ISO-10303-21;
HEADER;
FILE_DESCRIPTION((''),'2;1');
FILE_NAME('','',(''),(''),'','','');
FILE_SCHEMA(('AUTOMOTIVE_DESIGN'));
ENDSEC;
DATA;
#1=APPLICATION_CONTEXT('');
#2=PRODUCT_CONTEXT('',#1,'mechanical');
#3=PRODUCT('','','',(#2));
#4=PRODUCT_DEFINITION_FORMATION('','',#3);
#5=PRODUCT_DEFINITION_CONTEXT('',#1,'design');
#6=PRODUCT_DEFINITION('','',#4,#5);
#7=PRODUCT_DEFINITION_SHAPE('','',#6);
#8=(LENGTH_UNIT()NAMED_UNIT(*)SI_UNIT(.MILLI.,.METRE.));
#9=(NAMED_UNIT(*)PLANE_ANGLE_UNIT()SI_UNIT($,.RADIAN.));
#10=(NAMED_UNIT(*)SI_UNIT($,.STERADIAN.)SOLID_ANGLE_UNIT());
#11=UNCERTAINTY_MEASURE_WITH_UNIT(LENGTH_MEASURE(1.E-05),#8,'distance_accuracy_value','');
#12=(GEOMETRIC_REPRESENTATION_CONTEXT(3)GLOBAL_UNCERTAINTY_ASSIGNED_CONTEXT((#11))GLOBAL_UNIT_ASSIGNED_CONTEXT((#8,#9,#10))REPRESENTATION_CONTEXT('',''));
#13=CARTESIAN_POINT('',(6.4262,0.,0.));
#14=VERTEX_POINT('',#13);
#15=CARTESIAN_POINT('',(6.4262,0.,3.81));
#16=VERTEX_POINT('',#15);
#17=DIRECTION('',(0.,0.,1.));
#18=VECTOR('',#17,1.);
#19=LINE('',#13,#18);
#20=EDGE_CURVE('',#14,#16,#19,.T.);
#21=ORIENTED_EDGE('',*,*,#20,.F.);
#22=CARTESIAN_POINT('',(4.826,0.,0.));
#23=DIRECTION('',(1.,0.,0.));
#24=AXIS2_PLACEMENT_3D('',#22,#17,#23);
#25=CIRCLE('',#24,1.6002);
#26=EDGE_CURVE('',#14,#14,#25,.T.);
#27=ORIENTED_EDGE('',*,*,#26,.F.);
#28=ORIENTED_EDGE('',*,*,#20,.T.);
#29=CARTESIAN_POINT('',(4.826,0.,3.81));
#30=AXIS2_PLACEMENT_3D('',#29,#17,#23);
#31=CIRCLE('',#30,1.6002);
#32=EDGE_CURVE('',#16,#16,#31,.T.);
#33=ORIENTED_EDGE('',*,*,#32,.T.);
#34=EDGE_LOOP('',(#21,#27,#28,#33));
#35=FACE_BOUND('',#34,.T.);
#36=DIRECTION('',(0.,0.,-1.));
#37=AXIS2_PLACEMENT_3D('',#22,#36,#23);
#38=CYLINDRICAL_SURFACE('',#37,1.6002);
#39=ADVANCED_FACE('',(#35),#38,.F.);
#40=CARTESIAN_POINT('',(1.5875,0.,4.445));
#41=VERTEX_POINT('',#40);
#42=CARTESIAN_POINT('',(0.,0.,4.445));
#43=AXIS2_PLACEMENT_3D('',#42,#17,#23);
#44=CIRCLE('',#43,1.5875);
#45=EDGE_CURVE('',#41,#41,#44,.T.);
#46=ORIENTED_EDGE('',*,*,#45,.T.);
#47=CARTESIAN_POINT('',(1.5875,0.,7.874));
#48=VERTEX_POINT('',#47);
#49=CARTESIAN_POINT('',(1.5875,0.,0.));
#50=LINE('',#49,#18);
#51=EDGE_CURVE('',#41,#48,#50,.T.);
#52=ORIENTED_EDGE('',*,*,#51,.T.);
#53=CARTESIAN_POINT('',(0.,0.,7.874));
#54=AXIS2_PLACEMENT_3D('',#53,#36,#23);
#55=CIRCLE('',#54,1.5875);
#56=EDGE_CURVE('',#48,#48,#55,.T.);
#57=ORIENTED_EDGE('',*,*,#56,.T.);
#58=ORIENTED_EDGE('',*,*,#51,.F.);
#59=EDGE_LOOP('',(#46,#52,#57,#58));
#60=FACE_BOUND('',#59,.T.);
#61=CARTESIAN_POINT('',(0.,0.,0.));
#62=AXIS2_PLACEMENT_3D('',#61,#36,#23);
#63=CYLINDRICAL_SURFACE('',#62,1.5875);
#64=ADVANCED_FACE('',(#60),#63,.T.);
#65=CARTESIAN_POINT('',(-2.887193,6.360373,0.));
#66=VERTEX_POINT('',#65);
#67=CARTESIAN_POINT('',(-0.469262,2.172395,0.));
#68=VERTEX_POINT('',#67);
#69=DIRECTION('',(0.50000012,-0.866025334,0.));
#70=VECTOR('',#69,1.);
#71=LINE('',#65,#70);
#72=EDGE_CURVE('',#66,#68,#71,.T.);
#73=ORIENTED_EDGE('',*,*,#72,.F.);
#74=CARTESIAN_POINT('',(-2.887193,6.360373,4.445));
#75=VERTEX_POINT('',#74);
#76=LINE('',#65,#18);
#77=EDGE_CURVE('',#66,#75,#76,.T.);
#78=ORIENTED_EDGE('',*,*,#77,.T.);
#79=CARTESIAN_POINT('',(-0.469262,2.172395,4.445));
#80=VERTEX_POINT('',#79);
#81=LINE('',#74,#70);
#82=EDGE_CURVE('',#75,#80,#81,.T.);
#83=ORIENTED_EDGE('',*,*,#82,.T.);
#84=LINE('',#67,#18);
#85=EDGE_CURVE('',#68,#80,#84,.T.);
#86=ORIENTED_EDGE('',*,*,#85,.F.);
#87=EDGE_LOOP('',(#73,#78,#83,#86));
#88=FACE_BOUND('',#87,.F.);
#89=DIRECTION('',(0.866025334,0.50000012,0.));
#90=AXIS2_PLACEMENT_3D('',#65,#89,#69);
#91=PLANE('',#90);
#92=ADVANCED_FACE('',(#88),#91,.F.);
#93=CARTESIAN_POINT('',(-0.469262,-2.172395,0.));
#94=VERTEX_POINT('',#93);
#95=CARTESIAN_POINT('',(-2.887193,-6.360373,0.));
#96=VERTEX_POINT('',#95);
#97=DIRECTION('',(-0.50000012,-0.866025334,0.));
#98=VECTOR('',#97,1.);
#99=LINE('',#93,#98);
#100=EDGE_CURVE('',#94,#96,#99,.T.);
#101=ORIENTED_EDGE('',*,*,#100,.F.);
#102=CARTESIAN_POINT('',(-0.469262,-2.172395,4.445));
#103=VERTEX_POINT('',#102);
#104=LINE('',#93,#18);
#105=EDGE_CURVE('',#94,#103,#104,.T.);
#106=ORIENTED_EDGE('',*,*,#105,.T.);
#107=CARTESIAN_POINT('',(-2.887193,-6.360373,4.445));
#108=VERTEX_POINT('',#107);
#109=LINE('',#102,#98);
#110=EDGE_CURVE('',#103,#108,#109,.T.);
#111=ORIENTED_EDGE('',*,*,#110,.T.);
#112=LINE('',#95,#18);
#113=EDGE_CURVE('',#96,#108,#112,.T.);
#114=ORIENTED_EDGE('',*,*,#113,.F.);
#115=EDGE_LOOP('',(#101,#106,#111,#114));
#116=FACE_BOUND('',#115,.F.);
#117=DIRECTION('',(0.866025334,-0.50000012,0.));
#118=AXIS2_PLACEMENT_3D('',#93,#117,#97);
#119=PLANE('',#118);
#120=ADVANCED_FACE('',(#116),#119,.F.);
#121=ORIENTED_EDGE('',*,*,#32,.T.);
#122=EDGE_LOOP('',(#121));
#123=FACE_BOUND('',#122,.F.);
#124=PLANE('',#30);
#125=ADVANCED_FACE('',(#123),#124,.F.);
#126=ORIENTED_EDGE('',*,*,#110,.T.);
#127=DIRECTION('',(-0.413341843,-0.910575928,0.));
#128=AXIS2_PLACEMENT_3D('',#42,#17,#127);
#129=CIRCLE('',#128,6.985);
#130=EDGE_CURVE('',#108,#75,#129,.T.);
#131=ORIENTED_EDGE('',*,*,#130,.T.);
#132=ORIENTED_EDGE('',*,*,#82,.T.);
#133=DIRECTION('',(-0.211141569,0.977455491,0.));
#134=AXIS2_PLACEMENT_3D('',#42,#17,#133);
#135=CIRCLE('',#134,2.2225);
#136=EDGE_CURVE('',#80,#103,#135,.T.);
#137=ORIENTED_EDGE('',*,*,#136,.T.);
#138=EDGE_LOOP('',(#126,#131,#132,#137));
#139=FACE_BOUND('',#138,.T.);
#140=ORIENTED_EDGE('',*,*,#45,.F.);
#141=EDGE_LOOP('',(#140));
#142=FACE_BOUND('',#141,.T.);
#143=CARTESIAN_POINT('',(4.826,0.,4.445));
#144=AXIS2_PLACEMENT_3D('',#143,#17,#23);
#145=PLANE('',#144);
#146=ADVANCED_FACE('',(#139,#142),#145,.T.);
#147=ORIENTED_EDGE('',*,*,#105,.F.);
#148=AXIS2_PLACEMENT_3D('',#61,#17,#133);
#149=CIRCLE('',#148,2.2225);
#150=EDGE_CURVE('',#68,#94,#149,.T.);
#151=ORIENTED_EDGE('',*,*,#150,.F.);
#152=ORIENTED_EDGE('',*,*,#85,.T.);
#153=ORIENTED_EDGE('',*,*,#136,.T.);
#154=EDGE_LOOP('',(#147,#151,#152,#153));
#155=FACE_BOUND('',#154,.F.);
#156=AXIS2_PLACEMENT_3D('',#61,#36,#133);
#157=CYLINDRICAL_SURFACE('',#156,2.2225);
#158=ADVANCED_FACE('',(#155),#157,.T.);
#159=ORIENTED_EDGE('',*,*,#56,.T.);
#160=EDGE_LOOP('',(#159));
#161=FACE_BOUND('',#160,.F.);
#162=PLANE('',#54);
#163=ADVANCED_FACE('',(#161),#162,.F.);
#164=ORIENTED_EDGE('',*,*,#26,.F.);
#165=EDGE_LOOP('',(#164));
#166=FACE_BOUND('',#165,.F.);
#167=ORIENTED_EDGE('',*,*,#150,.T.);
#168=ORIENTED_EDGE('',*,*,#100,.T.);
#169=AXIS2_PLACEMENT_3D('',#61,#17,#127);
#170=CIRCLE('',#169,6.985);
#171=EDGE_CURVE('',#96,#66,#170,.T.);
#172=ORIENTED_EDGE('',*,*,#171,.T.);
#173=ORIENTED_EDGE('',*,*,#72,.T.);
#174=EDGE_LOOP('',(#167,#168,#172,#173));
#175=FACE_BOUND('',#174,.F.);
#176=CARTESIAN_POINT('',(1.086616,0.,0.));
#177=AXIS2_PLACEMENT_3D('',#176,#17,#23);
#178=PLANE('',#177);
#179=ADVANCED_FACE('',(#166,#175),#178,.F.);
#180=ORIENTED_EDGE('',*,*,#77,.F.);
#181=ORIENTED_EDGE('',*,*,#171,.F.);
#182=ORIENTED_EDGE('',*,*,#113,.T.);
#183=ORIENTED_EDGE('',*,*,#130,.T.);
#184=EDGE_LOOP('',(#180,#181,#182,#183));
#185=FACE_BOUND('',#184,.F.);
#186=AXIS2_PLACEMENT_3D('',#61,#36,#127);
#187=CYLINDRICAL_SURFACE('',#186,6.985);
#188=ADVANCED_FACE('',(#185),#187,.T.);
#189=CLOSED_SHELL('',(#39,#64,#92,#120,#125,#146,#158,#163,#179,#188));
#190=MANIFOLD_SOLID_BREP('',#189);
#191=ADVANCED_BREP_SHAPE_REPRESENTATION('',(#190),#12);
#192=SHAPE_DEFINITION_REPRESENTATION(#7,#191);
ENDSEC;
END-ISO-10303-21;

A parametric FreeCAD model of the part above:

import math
import FreeCAD as App
import Part
import Sketcher
Q = App.Units.Quantity

doc = App.newDocument("Part")
body = doc.addObject("PartDesign::Body", "Body")

sketch1 = doc.addObject("Sketcher::SketchObject", "Sketch")
body.addObject(sketch1)
sketch1.AttachmentSupport = (doc.XY_Plane, [""])
sketch1.MapMode = "FlatFace"
sketch1.addGeometry(Part.LineSegment(App.Vector(-0.5, -2.2, 0), App.Vector(-2.9, -6.4, 0)), False)
sketch1.addGeometry(Part.ArcOfCircle(Part.Circle(App.Vector(0, 0, 0), App.Vector(0, 0, 1), 7), math.radians(-114), math.radians(114)), False)
sketch1.addGeometry(Part.LineSegment(App.Vector(-2.9, 6.4, 0), App.Vector(-0.5, 2.2, 0)), False)
sketch1.addGeometry(Part.ArcOfCircle(Part.Circle(App.Vector(0, 0, 0), App.Vector(0, 0, 1), 2.2), math.radians(102), math.radians(258)), False)
sketch1.addGeometry(Part.Circle(App.Vector(0, 0, 0), App.Vector(0, 0, 1), 1.6), False)
sketch1.addGeometry(Part.Circle(App.Vector(4.8, 0, 0), App.Vector(0, 0, 1), 1.6), False)
sketch1.addConstraint(Sketcher.Constraint("Coincident", 0, 2, 1, 1))
sketch1.addConstraint(Sketcher.Constraint("Coincident", 1, 2, 2, 1))
sketch1.addConstraint(Sketcher.Constraint("Coincident", 2, 2, 3, 1))
sketch1.addConstraint(Sketcher.Constraint("Coincident", 3, 2, 0, 1))
sketch1.addConstraint(Sketcher.Constraint("Coincident", 1, 3, -1, 1))
sketch1.addConstraint(Sketcher.Constraint("Coincident", 3, 3, -1, 1))
sketch1.addConstraint(Sketcher.Constraint("Coincident", 4, 3, -1, 1))
sketch1.addConstraint(Sketcher.Constraint("PointOnObject", 5, 3, -1))
sketch1.addConstraint(Sketcher.Constraint("Vertical", 0, 2, 1, 2))
sketch1.addConstraint(Sketcher.Constraint("Vertical", 2, 2, 3, 2))
sketch1.addConstraint(Sketcher.Constraint("Diameter", 4, Q("0.125 in")))
sketch1.addConstraint(Sketcher.Constraint("Diameter", 5, Q("0.126 in")))
sketch1.addConstraint(Sketcher.Constraint("Angle", 0, Q("-120.000008 deg")))
sketch1.addConstraint(Sketcher.Constraint("Radius", 1, Q("0.275 in")))
sketch1.addConstraint(Sketcher.Constraint("Radius", 3, Q("0.0875 in")))
sketch1.addConstraint(Sketcher.Constraint("DistanceX", -1, 1, 5, 3, Q("0.19 in")))
sketch1.addConstraint(Sketcher.Constraint("Distance", 0, 4.835861))
pad1 = doc.addObject("PartDesign::Pad", "Pad")
body.addObject(pad1)
pad1.Profile = sketch1
pad1.Length = Q("0.175 in")

sketch2 = doc.addObject("Sketcher::SketchObject", "Sketch001")
body.addObject(sketch2)
sketch2.AttachmentSupport = (doc.XY_Plane, [""])
sketch2.MapMode = "FlatFace"
sketch2.addGeometry(Part.Circle(App.Vector(0, 0, 0), App.Vector(0, 0, 1), 1.6), False)
sketch2.addConstraint(Sketcher.Constraint("Coincident", 0, 3, -1, 1))
sketch2.addConstraint(Sketcher.Constraint("Diameter", 0, Q("0.125 in")))
pad2 = doc.addObject("PartDesign::Pad", "Pad001")
body.addObject(pad2)
pad2.Profile = sketch2
pad2.Length = Q("0.31 in")

sketch3 = doc.addObject("Sketcher::SketchObject", "Sketch002")
body.addObject(sketch3)
sketch3.AttachmentSupport = (doc.XY_Plane, [""])
sketch3.MapMode = "FlatFace"
sketch3.AttachmentOffset = App.Placement(App.Vector(0, 0, 0.175 * 25.4), App.Rotation())
sketch3.addGeometry(Part.Circle(App.Vector(4.8, 0, 0), App.Vector(0, 0, 1), 1.6), False)
sketch3.addConstraint(Sketcher.Constraint("PointOnObject", 0, 3, -1))
sketch3.addConstraint(Sketcher.Constraint("Diameter", 0, Q("0.126 in")))
sketch3.addConstraint(Sketcher.Constraint("DistanceX", -1, 1, 0, 3, Q("0.19 in")))
pad3 = doc.addObject("PartDesign::Pad", "Pad002")
body.addObject(pad3)
pad3.Profile = sketch3
pad3.Length = Q("0.025 in")
pad3.Reversed = True

doc.recompute()
